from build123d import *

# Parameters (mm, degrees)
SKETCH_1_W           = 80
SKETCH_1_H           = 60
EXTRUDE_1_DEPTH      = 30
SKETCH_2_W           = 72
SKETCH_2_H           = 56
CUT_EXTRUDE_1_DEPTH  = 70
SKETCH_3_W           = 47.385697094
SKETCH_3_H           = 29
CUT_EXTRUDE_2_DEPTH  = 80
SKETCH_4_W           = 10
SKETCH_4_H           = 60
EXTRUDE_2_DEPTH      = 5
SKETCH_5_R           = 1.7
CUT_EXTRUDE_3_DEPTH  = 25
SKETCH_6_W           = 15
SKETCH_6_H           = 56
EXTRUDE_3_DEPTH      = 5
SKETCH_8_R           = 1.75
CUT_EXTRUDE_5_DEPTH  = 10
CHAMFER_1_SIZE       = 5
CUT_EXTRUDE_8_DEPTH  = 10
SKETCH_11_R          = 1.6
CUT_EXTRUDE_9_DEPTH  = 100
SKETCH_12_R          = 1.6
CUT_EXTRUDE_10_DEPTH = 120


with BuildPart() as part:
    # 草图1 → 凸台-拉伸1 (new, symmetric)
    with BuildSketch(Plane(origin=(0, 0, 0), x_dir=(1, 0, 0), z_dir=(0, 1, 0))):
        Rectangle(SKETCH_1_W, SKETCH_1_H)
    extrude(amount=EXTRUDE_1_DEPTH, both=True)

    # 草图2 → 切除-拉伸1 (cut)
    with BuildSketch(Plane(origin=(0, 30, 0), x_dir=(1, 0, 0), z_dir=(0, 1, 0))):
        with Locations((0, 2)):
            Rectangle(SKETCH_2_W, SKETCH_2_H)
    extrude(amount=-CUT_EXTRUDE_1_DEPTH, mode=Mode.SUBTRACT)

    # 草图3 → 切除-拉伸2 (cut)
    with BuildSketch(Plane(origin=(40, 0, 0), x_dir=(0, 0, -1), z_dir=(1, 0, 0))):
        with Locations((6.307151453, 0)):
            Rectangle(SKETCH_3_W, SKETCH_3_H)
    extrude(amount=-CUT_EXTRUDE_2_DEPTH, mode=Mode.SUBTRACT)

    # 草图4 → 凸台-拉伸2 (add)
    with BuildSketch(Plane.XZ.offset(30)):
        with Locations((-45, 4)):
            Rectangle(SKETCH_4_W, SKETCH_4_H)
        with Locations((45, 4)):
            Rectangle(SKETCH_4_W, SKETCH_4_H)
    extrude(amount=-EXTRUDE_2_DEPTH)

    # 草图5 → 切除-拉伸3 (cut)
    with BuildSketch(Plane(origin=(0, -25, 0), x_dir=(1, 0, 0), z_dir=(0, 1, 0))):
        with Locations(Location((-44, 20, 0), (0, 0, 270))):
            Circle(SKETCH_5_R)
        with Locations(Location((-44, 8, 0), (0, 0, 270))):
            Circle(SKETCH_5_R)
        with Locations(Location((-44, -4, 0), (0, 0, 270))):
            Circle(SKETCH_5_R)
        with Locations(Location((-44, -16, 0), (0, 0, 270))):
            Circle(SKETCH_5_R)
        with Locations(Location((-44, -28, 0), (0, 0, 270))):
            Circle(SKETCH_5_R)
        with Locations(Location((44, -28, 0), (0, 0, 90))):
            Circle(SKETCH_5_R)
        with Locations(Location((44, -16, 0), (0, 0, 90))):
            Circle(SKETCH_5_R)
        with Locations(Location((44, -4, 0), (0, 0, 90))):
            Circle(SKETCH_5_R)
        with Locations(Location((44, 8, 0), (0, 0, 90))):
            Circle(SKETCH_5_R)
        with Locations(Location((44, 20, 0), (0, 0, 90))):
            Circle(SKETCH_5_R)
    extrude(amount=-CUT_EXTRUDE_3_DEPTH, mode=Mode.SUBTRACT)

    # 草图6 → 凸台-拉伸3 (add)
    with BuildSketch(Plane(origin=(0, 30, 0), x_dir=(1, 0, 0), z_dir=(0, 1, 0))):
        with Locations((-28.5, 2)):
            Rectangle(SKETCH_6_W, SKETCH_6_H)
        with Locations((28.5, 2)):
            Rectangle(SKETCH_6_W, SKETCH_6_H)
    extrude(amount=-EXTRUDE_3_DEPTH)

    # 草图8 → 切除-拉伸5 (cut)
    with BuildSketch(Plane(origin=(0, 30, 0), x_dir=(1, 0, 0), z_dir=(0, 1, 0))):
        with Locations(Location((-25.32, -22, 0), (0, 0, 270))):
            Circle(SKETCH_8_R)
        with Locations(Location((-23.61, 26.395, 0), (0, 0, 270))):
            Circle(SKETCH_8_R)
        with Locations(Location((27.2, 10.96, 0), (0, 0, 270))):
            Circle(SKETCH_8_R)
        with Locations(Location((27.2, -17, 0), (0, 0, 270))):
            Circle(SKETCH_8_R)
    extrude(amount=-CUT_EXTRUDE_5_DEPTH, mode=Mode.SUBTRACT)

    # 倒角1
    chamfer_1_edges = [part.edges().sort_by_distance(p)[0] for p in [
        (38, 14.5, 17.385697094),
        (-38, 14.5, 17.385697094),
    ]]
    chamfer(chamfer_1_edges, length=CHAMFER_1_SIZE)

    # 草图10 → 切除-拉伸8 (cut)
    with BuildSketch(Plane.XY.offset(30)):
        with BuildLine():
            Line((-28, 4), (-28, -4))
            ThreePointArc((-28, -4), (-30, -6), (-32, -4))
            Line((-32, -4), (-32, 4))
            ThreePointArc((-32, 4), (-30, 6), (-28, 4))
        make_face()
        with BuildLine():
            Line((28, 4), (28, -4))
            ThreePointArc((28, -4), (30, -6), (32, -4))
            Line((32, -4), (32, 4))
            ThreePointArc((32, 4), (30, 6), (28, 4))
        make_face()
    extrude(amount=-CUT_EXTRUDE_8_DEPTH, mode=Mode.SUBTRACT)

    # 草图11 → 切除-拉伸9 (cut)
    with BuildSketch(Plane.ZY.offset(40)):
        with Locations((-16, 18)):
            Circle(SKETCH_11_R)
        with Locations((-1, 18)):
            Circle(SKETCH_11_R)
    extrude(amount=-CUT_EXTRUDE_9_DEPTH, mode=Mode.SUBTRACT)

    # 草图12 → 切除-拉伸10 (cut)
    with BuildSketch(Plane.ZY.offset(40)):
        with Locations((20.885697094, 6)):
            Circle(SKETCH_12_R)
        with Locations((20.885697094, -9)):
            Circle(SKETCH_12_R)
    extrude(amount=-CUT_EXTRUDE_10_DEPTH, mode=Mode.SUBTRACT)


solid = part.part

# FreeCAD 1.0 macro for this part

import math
import FreeCAD as App
import Part
import Sketcher

V = App.Vector
Q = App.Units.Quantity


def edges_at(feature, points):
    """Names of the edges that pass closest to the given points."""
    edges = feature.Shape.Edges
    near = lambda p: min(range(len(edges)), key=lambda i: edges[i].distToShape(Part.Vertex(*p))[0])
    return sorted({f"Edge{near(p) + 1}" for p in points})

doc = App.newDocument("Part")
body = doc.addObject("PartDesign::Body", "Body")

sketch1 = body.newObject("Sketcher::SketchObject", "Sketch")
sketch1.AttachmentSupport = (doc.getObject("XZ_Plane"), [""])
sketch1.MapMode = "FlatFace"
sketch1.addGeometry([
    Part.LineSegment(V(-40, -30, 0), V(-40, 30, 0)),
    Part.LineSegment(V(-40, 30, 0), V(40, 30, 0)),
    Part.LineSegment(V(40, 30, 0), V(40, -30, 0)),
    Part.LineSegment(V(40, -30, 0), V(-40, -30, 0)),
], False)
sketch1.addConstraint([
    Sketcher.Constraint("Coincident", 0, 2, 1, 1),
    Sketcher.Constraint("Coincident", 1, 2, 2, 1),
    Sketcher.Constraint("Coincident", 2, 2, 3, 1),
    Sketcher.Constraint("Coincident", 3, 2, 0, 1),
    Sketcher.Constraint("Vertical", 0),
    Sketcher.Constraint("Horizontal", 1),
    Sketcher.Constraint("Vertical", 2),
    Sketcher.Constraint("Horizontal", 3),
    Sketcher.Constraint("Symmetric", 0, 2, 2, 2, -1, 1),
    Sketcher.Constraint("DistanceX", 1, 1, 1, 2, Q("80 mm")),
    Sketcher.Constraint("DistanceY", 0, 1, 0, 2, Q("60 mm")),
])
pad1 = body.newObject("PartDesign::Pad", "Pad")
pad1.Profile = sketch1
pad1.Length = 60
pad1.Midplane = True

sketch2 = body.newObject("Sketcher::SketchObject", "Sketch001")
sketch2.AttachmentSupport = (doc.getObject("XZ_Plane"), [""])
sketch2.MapMode = "FlatFace"
sketch2.AttachmentOffset = App.Placement(V(0, 0, -30), App.Rotation())
sketch2.addGeometry([
    Part.LineSegment(V(-36, -30, 0), V(-36, 26, 0)),
    Part.LineSegment(V(-36, 26, 0), V(36, 26, 0)),
    Part.LineSegment(V(36, 26, 0), V(36, -30, 0)),
    Part.LineSegment(V(36, -30, 0), V(-36, -30, 0)),
], False)
sketch2.addConstraint([
    Sketcher.Constraint("Coincident", 0, 2, 1, 1),
    Sketcher.Constraint("Coincident", 1, 2, 2, 1),
    Sketcher.Constraint("Coincident", 2, 2, 3, 1),
    Sketcher.Constraint("Coincident", 3, 2, 0, 1),
    Sketcher.Constraint("Vertical", 0),
    Sketcher.Constraint("Horizontal", 1),
    Sketcher.Constraint("Vertical", 2),
    Sketcher.Constraint("Horizontal", 3),
    Sketcher.Constraint("DistanceX", 1, 1, 1, 2, Q("72 mm")),
    Sketcher.Constraint("DistanceY", 0, 1, 0, 2, Q("56 mm")),
    Sketcher.Constraint("DistanceX", 0, 2, -1, 1, Q("36 mm")),
    Sketcher.Constraint("DistanceY", -1, 1, 0, 2, Q("26 mm")),
])
pocket1 = body.newObject("PartDesign::Pocket", "Pocket")
pocket1.Profile = sketch2
pocket1.Length = 70
pocket1.Reversed = True

sketch3 = body.newObject("Sketcher::SketchObject", "Sketch002")
sketch3.AttachmentSupport = (doc.getObject("YZ_Plane"), [""])
sketch3.MapMode = "FlatFace"
sketch3.AttachmentOffset = App.Placement(V(0, 0, 40), App.Rotation())
sketch3.addGeometry([
    Part.LineSegment(V(14.5, 17.385697, 0), V(-14.5, 17.385697, 0)),
    Part.LineSegment(V(-14.5, 17.385697, 0), V(-14.5, -30, 0)),
    Part.LineSegment(V(-14.5, -30, 0), V(14.5, -30, 0)),
    Part.LineSegment(V(14.5, -30, 0), V(14.5, 17.385697, 0)),
], False)
sketch3.addConstraint([
    Sketcher.Constraint("Coincident", 0, 2, 1, 1),
    Sketcher.Constraint("Coincident", 1, 2, 2, 1),
    Sketcher.Constraint("Coincident", 2, 2, 3, 1),
    Sketcher.Constraint("Coincident", 3, 2, 0, 1),
    Sketcher.Constraint("Horizontal", 0),
    Sketcher.Constraint("Vertical", 1),
    Sketcher.Constraint("Horizontal", 2),
    Sketcher.Constraint("Vertical", 3),
    Sketcher.Constraint("DistanceX", 0, 2, 0, 1, Q("29 mm")),
    Sketcher.Constraint("DistanceY", 1, 2, -1, 1, Q("30 mm")),
    Sketcher.Constraint("DistanceX", 0, 2, -1, 1, Q("14.5 mm")),
    Sketcher.Constraint("DistanceY", 1, 2, 1, 1, Q("47.385697 mm")),
])
pocket2 = body.newObject("PartDesign::Pocket", "Pocket001")
pocket2.Profile = sketch3
pocket2.Length = 80

sketch4 = body.newObject("Sketcher::SketchObject", "Sketch003")
sketch4.AttachmentSupport = (doc.getObject("XZ_Plane"), [""])
sketch4.MapMode = "FlatFace"
sketch4.AttachmentOffset = App.Placement(V(0, 0, 30), App.Rotation())
sketch4.addGeometry([
    Part.LineSegment(V(-50, 34, 0), V(-50, -26, 0)),
    Part.LineSegment(V(-50, -26, 0), V(-40, -26, 0)),
    Part.LineSegment(V(-40, -26, 0), V(-40, 34, 0)),
    Part.LineSegment(V(-40, 34, 0), V(-50, 34, 0)),
    Part.LineSegment(V(40, 34, 0), V(40, -26, 0)),
    Part.LineSegment(V(40, -26, 0), V(50, -26, 0)),
    Part.LineSegment(V(50, -26, 0), V(50, 34, 0)),
    Part.LineSegment(V(50, 34, 0), V(40, 34, 0)),
], False)
sketch4.addConstraint([
    Sketcher.Constraint("Coincident", 0, 2, 1, 1),
    Sketcher.Constraint("Coincident", 1, 2, 2, 1),
    Sketcher.Constraint("Coincident", 2, 2, 3, 1),
    Sketcher.Constraint("Coincident", 3, 2, 0, 1),
    Sketcher.Constraint("Coincident", 4, 2, 5, 1),
    Sketcher.Constraint("Coincident", 5, 2, 6, 1),
    Sketcher.Constraint("Coincident", 6, 2, 7, 1),
    Sketcher.Constraint("Coincident", 7, 2, 4, 1),
    Sketcher.Constraint("Vertical", 0),
    Sketcher.Constraint("Horizontal", 1),
    Sketcher.Constraint("Vertical", 2),
    Sketcher.Constraint("Horizontal", 3),
    Sketcher.Constraint("Vertical", 4),
    Sketcher.Constraint("Horizontal", 5),
    Sketcher.Constraint("Vertical", 6),
    Sketcher.Constraint("Horizontal", 7),
    Sketcher.Constraint("Symmetric", 1, 2, 4, 2, -2),
    Sketcher.Constraint("Symmetric", 3, 2, 6, 2, -2),
    Sketcher.Constraint("DistanceX", 1, 1, 1, 2, Q("10 mm")),
    Sketcher.Constraint("DistanceY", 0, 2, 0, 1, Q("60 mm")),
    Sketcher.Constraint("DistanceX", 0, 2, -1, 1, Q("50 mm")),
    Sketcher.Constraint("DistanceY", 0, 2, -1, 1, Q("26 mm")),
])
pad2 = body.newObject("PartDesign::Pad", "Pad001")
pad2.Profile = sketch4
pad2.Length = 5
pad2.Reversed = True

sketch5 = body.newObject("Sketcher::SketchObject", "Sketch004")
sketch5.AttachmentSupport = (doc.getObject("XZ_Plane"), [""])
sketch5.MapMode = "FlatFace"
sketch5.AttachmentOffset = App.Placement(V(0, 0, 25), App.Rotation())
sketch5.addGeometry([
    Part.Circle(V(-44, -20, 0), V(0, 0, 1), 1.7),
    Part.Circle(V(-44, -8, 0), V(0, 0, 1), 1.7),
    Part.Circle(V(-44, 4, 0), V(0, 0, 1), 1.7),
    Part.Circle(V(-44, 16, 0), V(0, 0, 1), 1.7),
    Part.Circle(V(-44, 28, 0), V(0, 0, 1), 1.7),
    Part.Circle(V(44, 28, 0), V(0, 0, 1), 1.7),
    Part.Circle(V(44, 16, 0), V(0, 0, 1), 1.7),
    Part.Circle(V(44, 4, 0), V(0, 0, 1), 1.7),
    Part.Circle(V(44, -8, 0), V(0, 0, 1), 1.7),
    Part.Circle(V(44, -20, 0), V(0, 0, 1), 1.7),
], False)
sketch5.addConstraint([
    Sketcher.Constraint("Equal", 0, 1),
    Sketcher.Constraint("Equal", 1, 2),
    Sketcher.Constraint("Equal", 2, 3),
    Sketcher.Constraint("Equal", 3, 4),
    Sketcher.Constraint("Equal", 4, 5),
    Sketcher.Constraint("Equal", 5, 6),
    Sketcher.Constraint("Equal", 6, 7),
    Sketcher.Constraint("Equal", 7, 8),
    Sketcher.Constraint("Equal", 8, 9),
    Sketcher.Constraint("Symmetric", 4, 3, 5, 3, -2),
    Sketcher.Constraint("Symmetric", 3, 3, 6, 3, -2),
    Sketcher.Constraint("Symmetric", 2, 3, 7, 3, -2),
    Sketcher.Constraint("Symmetric", 1, 3, 8, 3, -2),
    Sketcher.Constraint("Symmetric", 0, 3, 9, 3, -2),
    Sketcher.Constraint("Vertical", 0, 3, 1, 3),
    Sketcher.Constraint("Vertical", 1, 3, 2, 3),
    Sketcher.Constraint("Vertical", 2, 3, 3, 3),
    Sketcher.Constraint("Vertical", 3, 3, 4, 3),
    Sketcher.Constraint("Diameter", 0, Q("3.4 mm")),
    Sketcher.Constraint("DistanceX", 0, 3, -1, 1, Q("44 mm")),
    Sketcher.Constraint("DistanceY", 0, 3, -1, 1, Q("20 mm")),
    Sketcher.Constraint("DistanceY", 1, 3, -1, 1, Q("8 mm")),
    Sketcher.Constraint("DistanceY", -1, 1, 2, 3, Q("4 mm")),
    Sketcher.Constraint("DistanceY", -1, 1, 3, 3, Q("16 mm")),
    Sketcher.Constraint("DistanceY", -1, 1, 4, 3, Q("28 mm")),
])
pocket3 = body.newObject("PartDesign::Pocket", "Pocket002")
pocket3.Profile = sketch5
pocket3.Length = 25
pocket3.Reversed = True

sketch6 = body.newObject("Sketcher::SketchObject", "Sketch005")
sketch6.AttachmentSupport = (doc.getObject("XZ_Plane"), [""])
sketch6.MapMode = "FlatFace"
sketch6.AttachmentOffset = App.Placement(V(0, 0, -30), App.Rotation())
sketch6.addGeometry([
    Part.LineSegment(V(-36, -30, 0), V(-36, 26, 0)),
    Part.LineSegment(V(-36, 26, 0), V(-21, 26, 0)),
    Part.LineSegment(V(-21, 26, 0), V(-21, -30, 0)),
    Part.LineSegment(V(-21, -30, 0), V(-36, -30, 0)),
    Part.LineSegment(V(21, -30, 0), V(21, 26, 0)),
    Part.LineSegment(V(21, 26, 0), V(36, 26, 0)),
    Part.LineSegment(V(36, 26, 0), V(36, -30, 0)),
    Part.LineSegment(V(36, -30, 0), V(21, -30, 0)),
], False)
sketch6.addConstraint([
    Sketcher.Constraint("Coincident", 0, 2, 1, 1),
    Sketcher.Constraint("Coincident", 1, 2, 2, 1),
    Sketcher.Constraint("Coincident", 2, 2, 3, 1),
    Sketcher.Constraint("Coincident", 3, 2, 0, 1),
    Sketcher.Constraint("Coincident", 4, 2, 5, 1),
    Sketcher.Constraint("Coincident", 5, 2, 6, 1),
    Sketcher.Constraint("Coincident", 6, 2, 7, 1),
    Sketcher.Constraint("Coincident", 7, 2, 4, 1),
    Sketcher.Constraint("Vertical", 0),
    Sketcher.Constraint("Horizontal", 1),
    Sketcher.Constraint("Vertical", 2),
    Sketcher.Constraint("Horizontal", 3),
    Sketcher.Constraint("Vertical", 4),
    Sketcher.Constraint("Horizontal", 5),
    Sketcher.Constraint("Vertical", 6),
    Sketcher.Constraint("Horizontal", 7),
    Sketcher.Constraint("Symmetric", 1, 2, 4, 2, -2),
    Sketcher.Constraint("Symmetric", 3, 2, 6, 2, -2),
    Sketcher.Constraint("DistanceX", 1, 1, 1, 2, Q("15 mm")),
    Sketcher.Constraint("DistanceY", 0, 1, 0, 2, Q("56 mm")),
    Sketcher.Constraint("DistanceX", 0, 2, -1, 1, Q("36 mm")),
    Sketcher.Constraint("DistanceY", -1, 1, 0, 2, Q("26 mm")),
])
pad3 = body.newObject("PartDesign::Pad", "Pad002")
pad3.Profile = sketch6
pad3.Length = 5

sketch7 = body.newObject("Sketcher::SketchObject", "Sketch006")
sketch7.AttachmentSupport = (doc.getObject("XZ_Plane"), [""])
sketch7.MapMode = "FlatFace"
sketch7.AttachmentOffset = App.Placement(V(0, 0, -30), App.Rotation())
sketch7.addGeometry([
    Part.Circle(V(-25.32, 22, 0), V(0, 0, 1), 1.75),
    Part.Circle(V(-23.61, -26.395, 0), V(0, 0, 1), 1.75),
    Part.Circle(V(27.2, -10.96, 0), V(0, 0, 1), 1.75),
    Part.Circle(V(27.2, 17, 0), V(0, 0, 1), 1.75),
], False)
sketch7.addConstraint([
    Sketcher.Constraint("Equal", 0, 1),
    Sketcher.Constraint("Equal", 1, 2),
    Sketcher.Constraint("Equal", 2, 3),
    Sketcher.Constraint("Vertical", 2, 3, 3, 3),
    Sketcher.Constraint("Diameter", 0, Q("3.5 mm")),
    Sketcher.Constraint("DistanceY", -1, 1, 0, 3, Q("22 mm")),
    Sketcher.Constraint("DistanceY", -1, 1, 3, 3, Q("17 mm")),
    Sketcher.Constraint("DistanceX", -1, 1, 2, 3, Q("27.2 mm")),
    Sketcher.Constraint("DistanceX", 0, 3, -1, 1, Q("25.32 mm")),
    Sketcher.Constraint("DistanceX", 1, 3, -1, 1, Q("23.61 mm")),
    Sketcher.Constraint("DistanceY", 2, 3, -1, 1, Q("10.96 mm")),
    Sketcher.Constraint("DistanceY", 1, 3, -1, 1, Q("26.395 mm")),
])
pocket4 = body.newObject("PartDesign::Pocket", "Pocket003")
pocket4.Profile = sketch7
pocket4.Length = 10
pocket4.Reversed = True
doc.recompute()

chamfer = body.newObject("PartDesign::Chamfer", "Chamfer")
chamfer.Base = (pocket4, edges_at(pocket4, [(38, 14.5, 17.386), (-38, 14.5, 17.386)]))
chamfer.Size = 5

sketch8 = body.newObject("Sketcher::SketchObject", "Sketch007")
sketch8.AttachmentSupport = (doc.getObject("XY_Plane"), [""])
sketch8.MapMode = "FlatFace"
sketch8.AttachmentOffset = App.Placement(V(0, 0, 30), App.Rotation())
sketch8.addGeometry([
    Part.LineSegment(V(-28, -4, 0), V(-28, 4, 0)),
    Part.ArcOfCircle(Part.Circle(V(-30, 4, 0), V(0, 0, 1), 2), math.radians(0), math.radians(180)),
    Part.LineSegment(V(-32, 4, 0), V(-32, -4, 0)),
    Part.ArcOfCircle(Part.Circle(V(-30, -4, 0), V(0, 0, 1), 2), math.radians(180), math.radians(360)),
    Part.LineSegment(V(28, 4, 0), V(28, -4, 0)),
    Part.ArcOfCircle(Part.Circle(V(30, -4, 0), V(0, 0, 1), 2), math.radians(180), math.radians(360)),
    Part.LineSegment(V(32, -4, 0), V(32, 4, 0)),
    Part.ArcOfCircle(Part.Circle(V(30, 4, 0), V(0, 0, 1), 2), math.radians(0), math.radians(180)),
], False)
sketch8.addConstraint([
    Sketcher.Constraint("Tangent", 0, 2, 1, 1),
    Sketcher.Constraint("Tangent", 1, 2, 2, 1),
    Sketcher.Constraint("Tangent", 2, 2, 3, 1),
    Sketcher.Constraint("Tangent", 3, 2, 0, 1),
    Sketcher.Constraint("Tangent", 4, 2, 5, 1),
    Sketcher.Constraint("Tangent", 5, 2, 6, 1),
    Sketcher.Constraint("Tangent", 6, 2, 7, 1),
    Sketcher.Constraint("Tangent", 7, 2, 4, 1),
    Sketcher.Constraint("Vertical", 0),
    Sketcher.Constraint("Vertical", 2),
    Sketcher.Constraint("Vertical", 4),
    Sketcher.Constraint("Vertical", 6),
    Sketcher.Constraint("Equal", 3, 5),
    Sketcher.Constraint("Symmetric", 1, 3, 5, 3, -1, 1),
    Sketcher.Constraint("Horizontal", 3, 3, 5, 3),
    Sketcher.Constraint("Horizontal", 1, 3, 7, 3),
    Sketcher.Constraint("Radius", 1, Q("2 mm")),
    Sketcher.Constraint("DistanceY", 0, 1, 0, 2, Q("8 mm")),
    Sketcher.Constraint("DistanceX", 1, 3, -1, 1, Q("30 mm")),
])
pocket5 = body.newObject("PartDesign::Pocket", "Pocket004")
pocket5.Profile = sketch8
pocket5.Length = 10

sketch9 = body.newObject("Sketcher::SketchObject", "Sketch008")
sketch9.AttachmentSupport = (doc.getObject("YZ_Plane"), [""])
sketch9.MapMode = "FlatFace"
sketch9.AttachmentOffset = App.Placement(V(0, 0, -40), App.Rotation())
sketch9.addGeometry([
    Part.Circle(V(18, -16, 0), V(0, 0, 1), 1.6),
    Part.Circle(V(18, -1, 0), V(0, 0, 1), 1.6),
], False)
sketch9.addConstraint([
    Sketcher.Constraint("Equal", 0, 1),
    Sketcher.Constraint("Vertical", 0, 3, 1, 3),
    Sketcher.Constraint("Diameter", 0, Q("3.2 mm")),
    Sketcher.Constraint("DistanceX", -1, 1, 0, 3, Q("18 mm")),
    Sketcher.Constraint("DistanceY", 0, 3, -1, 1, Q("16 mm")),
    Sketcher.Constraint("DistanceY", 1, 3, -1, 1, Q("1 mm")),
])
pocket6 = body.newObject("PartDesign::Pocket", "Pocket005")
pocket6.Profile = sketch9
pocket6.Length = 100
pocket6.Reversed = True

sketch10 = body.newObject("Sketcher::SketchObject", "Sketch009")
sketch10.AttachmentSupport = (doc.getObject("YZ_Plane"), [""])
sketch10.MapMode = "FlatFace"
sketch10.AttachmentOffset = App.Placement(V(0, 0, -40), App.Rotation())
sketch10.addGeometry([
    Part.Circle(V(6, 20.885697, 0), V(0, 0, 1), 1.6),
    Part.Circle(V(-9, 20.885697, 0), V(0, 0, 1), 1.6),
], False)
sketch10.addConstraint([
    Sketcher.Constraint("Equal", 0, 1),
    Sketcher.Constraint("Horizontal", 0, 3, 1, 3),
    Sketcher.Constraint("Diameter", 0, Q("3.2 mm")),
    Sketcher.Constraint("DistanceX", -1, 1, 0, 3, Q("6 mm")),
    Sketcher.Constraint("DistanceX", 1, 3, -1, 1, Q("9 mm")),
    Sketcher.Constraint("DistanceY", -1, 1, 0, 3, Q("20.885697 mm")),
])
pocket7 = body.newObject("PartDesign::Pocket", "Pocket006")
pocket7.Profile = sketch10
pocket7.Length = 120
pocket7.Reversed = True

doc.recompute()
